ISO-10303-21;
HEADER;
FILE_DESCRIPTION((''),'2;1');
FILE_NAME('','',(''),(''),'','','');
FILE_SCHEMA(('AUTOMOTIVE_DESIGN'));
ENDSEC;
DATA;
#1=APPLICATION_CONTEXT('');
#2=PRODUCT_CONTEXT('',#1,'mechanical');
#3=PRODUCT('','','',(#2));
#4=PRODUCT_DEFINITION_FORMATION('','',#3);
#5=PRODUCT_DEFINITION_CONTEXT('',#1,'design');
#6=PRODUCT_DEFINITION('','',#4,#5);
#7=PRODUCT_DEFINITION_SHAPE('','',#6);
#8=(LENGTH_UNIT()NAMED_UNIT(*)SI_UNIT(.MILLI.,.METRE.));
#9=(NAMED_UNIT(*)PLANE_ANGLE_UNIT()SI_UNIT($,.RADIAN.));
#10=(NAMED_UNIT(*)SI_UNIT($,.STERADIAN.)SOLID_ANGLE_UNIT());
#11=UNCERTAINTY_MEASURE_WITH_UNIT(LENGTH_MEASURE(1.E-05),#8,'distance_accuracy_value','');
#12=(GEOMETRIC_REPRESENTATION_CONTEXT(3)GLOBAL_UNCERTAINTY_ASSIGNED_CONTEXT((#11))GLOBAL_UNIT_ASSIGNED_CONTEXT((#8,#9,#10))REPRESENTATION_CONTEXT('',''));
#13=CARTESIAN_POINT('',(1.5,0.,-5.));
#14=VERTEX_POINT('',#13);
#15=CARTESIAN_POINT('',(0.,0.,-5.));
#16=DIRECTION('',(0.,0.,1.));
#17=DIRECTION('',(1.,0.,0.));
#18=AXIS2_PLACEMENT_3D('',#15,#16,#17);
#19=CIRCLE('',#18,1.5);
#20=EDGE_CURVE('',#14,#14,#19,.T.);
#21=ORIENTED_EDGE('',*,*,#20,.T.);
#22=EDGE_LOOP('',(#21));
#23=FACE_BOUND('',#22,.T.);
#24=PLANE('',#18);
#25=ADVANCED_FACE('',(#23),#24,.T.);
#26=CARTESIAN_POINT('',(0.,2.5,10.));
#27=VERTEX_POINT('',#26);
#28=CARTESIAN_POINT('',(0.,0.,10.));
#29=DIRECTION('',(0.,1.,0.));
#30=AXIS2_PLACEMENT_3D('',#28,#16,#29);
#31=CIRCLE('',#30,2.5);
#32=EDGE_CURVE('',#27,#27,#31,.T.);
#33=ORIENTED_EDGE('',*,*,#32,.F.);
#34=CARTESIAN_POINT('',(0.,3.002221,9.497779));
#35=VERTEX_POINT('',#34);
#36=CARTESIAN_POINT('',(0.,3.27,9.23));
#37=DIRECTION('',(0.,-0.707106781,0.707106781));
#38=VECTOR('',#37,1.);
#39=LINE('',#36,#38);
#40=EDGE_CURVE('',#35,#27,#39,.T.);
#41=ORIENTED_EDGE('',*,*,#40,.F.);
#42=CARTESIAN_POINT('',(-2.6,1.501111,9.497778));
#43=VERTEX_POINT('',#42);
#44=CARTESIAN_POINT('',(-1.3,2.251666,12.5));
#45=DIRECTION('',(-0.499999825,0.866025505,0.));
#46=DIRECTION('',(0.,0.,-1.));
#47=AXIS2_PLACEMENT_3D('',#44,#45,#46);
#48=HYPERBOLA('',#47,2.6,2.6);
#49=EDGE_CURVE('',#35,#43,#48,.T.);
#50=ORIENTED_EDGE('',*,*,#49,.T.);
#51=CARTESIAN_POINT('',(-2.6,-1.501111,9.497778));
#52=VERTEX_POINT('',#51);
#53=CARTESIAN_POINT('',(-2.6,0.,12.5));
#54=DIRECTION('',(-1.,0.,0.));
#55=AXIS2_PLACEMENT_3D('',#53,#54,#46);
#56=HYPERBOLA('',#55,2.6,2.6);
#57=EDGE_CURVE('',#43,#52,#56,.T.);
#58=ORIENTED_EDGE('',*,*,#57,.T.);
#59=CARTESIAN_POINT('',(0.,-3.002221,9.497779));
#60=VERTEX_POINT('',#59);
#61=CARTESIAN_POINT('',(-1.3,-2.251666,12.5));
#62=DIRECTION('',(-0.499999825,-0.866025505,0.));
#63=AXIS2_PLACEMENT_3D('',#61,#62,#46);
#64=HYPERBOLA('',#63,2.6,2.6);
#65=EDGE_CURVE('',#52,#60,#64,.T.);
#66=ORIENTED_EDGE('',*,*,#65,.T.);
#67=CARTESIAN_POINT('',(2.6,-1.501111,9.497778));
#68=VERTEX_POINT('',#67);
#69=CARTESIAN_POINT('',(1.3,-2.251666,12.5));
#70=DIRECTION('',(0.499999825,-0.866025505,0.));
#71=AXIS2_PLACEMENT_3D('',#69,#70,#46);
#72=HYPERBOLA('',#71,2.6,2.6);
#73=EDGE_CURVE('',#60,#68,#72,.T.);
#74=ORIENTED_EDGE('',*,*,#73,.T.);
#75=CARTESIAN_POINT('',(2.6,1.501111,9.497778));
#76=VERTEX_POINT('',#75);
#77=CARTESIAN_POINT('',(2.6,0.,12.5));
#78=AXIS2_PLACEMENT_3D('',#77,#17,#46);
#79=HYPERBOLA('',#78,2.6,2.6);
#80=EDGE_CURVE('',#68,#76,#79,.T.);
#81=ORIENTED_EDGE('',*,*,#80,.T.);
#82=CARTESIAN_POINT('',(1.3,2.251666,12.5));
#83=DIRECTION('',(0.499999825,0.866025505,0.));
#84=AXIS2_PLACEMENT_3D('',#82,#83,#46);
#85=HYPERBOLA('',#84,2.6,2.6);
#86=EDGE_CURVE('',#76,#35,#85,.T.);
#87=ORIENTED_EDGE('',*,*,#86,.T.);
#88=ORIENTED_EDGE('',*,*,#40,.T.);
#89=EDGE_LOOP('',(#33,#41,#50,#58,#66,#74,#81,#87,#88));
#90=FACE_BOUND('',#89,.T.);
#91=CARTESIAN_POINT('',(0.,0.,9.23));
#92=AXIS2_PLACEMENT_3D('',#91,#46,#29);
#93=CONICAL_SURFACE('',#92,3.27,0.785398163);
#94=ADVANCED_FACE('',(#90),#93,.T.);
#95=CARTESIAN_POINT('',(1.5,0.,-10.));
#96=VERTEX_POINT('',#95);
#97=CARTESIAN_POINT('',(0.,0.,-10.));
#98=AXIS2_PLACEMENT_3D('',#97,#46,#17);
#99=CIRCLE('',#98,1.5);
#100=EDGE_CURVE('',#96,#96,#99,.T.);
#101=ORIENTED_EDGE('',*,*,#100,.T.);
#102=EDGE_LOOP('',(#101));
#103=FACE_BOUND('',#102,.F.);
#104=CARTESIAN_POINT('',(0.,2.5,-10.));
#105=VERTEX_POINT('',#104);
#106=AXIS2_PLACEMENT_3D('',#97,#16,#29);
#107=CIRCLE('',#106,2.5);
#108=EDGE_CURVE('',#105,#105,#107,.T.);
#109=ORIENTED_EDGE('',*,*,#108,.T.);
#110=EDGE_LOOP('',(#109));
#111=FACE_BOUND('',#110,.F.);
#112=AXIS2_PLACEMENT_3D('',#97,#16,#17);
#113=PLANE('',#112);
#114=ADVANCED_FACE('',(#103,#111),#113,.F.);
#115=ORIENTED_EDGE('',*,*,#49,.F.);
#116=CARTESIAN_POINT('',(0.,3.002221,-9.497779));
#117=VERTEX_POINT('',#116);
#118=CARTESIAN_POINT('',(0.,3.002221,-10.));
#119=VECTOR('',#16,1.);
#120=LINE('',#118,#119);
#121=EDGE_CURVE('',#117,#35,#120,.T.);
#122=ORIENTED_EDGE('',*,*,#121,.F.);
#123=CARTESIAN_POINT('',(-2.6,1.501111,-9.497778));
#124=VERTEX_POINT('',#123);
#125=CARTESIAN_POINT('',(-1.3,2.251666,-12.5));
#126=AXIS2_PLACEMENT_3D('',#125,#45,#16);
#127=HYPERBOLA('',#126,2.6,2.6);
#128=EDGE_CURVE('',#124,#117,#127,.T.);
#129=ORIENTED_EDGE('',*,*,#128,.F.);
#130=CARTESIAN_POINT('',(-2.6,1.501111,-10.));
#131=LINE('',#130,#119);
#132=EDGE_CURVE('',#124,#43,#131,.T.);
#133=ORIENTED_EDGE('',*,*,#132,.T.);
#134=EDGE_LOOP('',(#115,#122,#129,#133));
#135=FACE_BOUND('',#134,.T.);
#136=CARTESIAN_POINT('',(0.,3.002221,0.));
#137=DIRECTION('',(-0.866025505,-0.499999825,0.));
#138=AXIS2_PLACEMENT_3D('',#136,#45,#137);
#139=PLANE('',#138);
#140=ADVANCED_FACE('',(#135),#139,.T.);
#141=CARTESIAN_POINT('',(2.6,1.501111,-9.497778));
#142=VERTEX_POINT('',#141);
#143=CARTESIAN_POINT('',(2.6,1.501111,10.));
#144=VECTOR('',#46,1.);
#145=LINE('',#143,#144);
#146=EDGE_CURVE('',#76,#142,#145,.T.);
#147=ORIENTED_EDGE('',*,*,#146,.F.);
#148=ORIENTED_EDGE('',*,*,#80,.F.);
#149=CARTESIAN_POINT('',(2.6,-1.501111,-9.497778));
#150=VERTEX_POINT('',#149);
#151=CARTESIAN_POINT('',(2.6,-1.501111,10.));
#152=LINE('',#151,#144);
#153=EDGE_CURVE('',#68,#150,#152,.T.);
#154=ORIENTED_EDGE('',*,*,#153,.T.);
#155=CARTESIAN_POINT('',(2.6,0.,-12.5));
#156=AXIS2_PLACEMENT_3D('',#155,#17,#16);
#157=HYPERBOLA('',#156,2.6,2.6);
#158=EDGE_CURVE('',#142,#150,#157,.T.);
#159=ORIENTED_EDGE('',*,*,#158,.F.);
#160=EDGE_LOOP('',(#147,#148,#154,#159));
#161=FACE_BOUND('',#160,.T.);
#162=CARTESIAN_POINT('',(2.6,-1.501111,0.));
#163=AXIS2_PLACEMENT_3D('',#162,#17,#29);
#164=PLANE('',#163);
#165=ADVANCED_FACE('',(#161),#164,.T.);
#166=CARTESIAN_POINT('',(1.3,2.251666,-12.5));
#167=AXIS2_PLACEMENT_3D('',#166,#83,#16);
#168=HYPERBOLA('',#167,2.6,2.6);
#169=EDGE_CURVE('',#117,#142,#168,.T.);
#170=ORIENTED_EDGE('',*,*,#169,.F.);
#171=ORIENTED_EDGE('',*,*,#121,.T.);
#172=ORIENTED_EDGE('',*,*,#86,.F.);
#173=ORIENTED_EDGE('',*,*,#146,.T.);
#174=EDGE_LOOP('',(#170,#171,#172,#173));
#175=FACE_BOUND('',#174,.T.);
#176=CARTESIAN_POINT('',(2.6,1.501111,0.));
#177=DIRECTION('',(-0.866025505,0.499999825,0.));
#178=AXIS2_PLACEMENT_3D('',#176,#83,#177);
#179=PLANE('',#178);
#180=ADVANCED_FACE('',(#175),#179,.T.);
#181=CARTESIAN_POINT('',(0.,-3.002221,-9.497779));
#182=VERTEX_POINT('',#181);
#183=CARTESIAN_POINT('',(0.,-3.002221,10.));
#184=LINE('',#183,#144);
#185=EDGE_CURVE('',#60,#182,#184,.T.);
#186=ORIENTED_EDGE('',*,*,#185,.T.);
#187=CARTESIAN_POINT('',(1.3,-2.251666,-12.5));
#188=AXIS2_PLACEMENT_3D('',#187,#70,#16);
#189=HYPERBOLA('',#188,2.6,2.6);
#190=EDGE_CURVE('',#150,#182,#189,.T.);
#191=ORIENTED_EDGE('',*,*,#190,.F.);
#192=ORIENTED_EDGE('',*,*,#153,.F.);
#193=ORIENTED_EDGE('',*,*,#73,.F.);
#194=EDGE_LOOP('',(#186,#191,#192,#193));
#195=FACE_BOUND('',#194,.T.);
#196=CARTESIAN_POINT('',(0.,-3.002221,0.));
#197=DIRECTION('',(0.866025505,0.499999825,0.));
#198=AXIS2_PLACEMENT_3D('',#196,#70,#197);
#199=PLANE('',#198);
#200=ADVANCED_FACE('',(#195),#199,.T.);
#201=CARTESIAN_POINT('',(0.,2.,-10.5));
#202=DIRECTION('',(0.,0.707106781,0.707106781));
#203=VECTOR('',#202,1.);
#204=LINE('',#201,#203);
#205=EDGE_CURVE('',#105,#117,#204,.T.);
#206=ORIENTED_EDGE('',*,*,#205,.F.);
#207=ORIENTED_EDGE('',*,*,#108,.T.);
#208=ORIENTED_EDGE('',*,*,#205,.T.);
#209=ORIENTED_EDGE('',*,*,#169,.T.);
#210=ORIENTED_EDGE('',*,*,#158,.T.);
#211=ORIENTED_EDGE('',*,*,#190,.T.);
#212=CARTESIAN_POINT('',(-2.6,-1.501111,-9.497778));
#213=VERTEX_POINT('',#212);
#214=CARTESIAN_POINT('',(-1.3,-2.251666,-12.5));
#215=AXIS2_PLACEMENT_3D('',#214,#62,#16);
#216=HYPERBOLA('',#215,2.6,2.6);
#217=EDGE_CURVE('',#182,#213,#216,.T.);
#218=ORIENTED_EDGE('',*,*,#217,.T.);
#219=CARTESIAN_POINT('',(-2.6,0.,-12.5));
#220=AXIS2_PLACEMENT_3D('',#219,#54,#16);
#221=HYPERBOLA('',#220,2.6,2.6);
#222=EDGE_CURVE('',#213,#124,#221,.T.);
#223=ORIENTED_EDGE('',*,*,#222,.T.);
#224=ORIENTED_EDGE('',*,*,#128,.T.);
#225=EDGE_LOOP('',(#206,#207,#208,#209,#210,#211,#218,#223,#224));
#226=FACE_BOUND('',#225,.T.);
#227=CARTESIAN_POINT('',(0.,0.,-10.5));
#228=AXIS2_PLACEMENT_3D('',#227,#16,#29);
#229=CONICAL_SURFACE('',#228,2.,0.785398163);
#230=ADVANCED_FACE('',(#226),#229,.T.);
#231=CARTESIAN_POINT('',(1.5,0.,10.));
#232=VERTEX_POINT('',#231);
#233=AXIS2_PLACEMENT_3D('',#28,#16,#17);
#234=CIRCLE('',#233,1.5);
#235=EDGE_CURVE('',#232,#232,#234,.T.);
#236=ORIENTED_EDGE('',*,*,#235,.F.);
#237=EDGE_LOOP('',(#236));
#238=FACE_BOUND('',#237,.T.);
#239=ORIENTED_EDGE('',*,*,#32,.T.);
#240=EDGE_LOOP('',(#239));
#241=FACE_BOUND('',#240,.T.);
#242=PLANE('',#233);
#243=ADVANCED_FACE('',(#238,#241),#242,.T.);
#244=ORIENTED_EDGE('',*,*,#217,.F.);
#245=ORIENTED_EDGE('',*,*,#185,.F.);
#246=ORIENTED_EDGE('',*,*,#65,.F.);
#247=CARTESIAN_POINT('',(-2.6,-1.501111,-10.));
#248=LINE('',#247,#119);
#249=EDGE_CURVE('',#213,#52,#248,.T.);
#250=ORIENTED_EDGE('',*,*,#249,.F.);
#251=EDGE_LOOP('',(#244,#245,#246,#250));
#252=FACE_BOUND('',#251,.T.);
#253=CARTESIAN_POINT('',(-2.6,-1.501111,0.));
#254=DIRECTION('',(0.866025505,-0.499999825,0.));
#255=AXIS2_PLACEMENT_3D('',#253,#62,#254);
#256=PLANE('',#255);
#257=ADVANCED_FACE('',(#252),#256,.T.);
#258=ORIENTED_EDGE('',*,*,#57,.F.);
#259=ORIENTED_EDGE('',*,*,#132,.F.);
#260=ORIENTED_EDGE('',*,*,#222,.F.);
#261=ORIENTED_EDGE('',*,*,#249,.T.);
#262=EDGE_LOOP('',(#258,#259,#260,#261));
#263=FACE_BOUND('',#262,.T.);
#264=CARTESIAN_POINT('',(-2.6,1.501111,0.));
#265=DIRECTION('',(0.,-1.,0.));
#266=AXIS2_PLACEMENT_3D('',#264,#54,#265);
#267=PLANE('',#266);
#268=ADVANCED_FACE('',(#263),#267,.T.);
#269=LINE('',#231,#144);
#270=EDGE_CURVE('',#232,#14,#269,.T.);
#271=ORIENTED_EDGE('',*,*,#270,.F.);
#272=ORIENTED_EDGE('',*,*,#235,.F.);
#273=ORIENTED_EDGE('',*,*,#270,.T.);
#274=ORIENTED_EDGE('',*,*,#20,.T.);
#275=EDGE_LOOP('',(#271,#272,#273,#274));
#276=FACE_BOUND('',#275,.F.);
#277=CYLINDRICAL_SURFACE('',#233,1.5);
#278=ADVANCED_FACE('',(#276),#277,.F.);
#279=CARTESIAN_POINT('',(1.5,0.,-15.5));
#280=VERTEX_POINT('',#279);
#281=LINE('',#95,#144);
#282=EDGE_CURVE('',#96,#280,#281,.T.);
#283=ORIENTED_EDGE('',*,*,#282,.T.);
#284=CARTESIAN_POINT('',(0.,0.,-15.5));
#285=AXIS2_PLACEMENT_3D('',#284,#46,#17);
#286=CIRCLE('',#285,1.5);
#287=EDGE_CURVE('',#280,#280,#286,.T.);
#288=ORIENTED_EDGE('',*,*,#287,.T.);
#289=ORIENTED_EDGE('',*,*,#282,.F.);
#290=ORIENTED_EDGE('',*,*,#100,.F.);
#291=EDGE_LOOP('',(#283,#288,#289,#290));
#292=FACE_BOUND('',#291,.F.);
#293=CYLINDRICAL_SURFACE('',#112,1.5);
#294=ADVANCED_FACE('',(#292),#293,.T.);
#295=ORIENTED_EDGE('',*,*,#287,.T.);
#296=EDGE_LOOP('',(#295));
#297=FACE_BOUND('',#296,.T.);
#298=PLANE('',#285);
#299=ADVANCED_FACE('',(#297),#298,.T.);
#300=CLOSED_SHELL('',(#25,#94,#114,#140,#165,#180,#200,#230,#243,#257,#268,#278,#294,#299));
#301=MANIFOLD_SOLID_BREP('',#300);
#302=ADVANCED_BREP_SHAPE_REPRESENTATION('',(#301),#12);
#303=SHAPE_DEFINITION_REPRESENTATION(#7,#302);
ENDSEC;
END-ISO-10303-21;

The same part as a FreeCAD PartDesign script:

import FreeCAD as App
import Part
import Sketcher
Q = App.Units.Quantity


def add_polygon(sketch, points):
    """Adds a closed chain of lines whose ends are joined by coincident constraints."""
    first, n = sketch.GeometryCount, len(points)
    for a, b in zip(points, points[1:] + points[:1]):
        sketch.addGeometry(Part.LineSegment(App.Vector(*a, 0), App.Vector(*b, 0)), False)
    for i in range(n):
        sketch.addConstraint(Sketcher.Constraint("Coincident", first + i, 2, first + (i + 1) % n, 1))

doc = App.newDocument("Part")
body = doc.addObject("PartDesign::Body", "Body")

# Sketch on XY plane
sketch1 = body.newObject("Sketcher::SketchObject", "Sketch")
sketch1.AttachmentSupport = (doc.getObject("XY_Plane"), [""])
sketch1.MapMode = "FlatFace"
add_polygon(sketch1, [(2.6, 1.5), (0, 3), (-2.6, 1.5), (-2.6, -1.5), (0, -3), (2.6, -1.5)])  # lines 0-5
sketch1.addConstraint(Sketcher.Constraint("Vertical", 2))
sketch1.addConstraint(Sketcher.Constraint("Vertical", 5))
sketch1.addConstraint(Sketcher.Constraint("Symmetric", 0, 2, 3, 2, -1, 1))
sketch1.addConstraint(Sketcher.Constraint("Symmetric", 1, 2, 4, 2, -1, 1))
sketch1.addConstraint(Sketcher.Constraint("PointOnObject", 0, 2, -2))
sketch1.addConstraint(Sketcher.Constraint("Parallel", 0, 3))
sketch1.addConstraint(Sketcher.Constraint("Horizontal", 2, 2, 4, 2))
sketch1.addConstraint(Sketcher.Constraint("Angle", 0, Q("150.000012 deg")))
sketch1.addConstraint(Sketcher.Constraint("DistanceX", 1, 2, -1, 1, 2.6))
sketch1.addConstraint(Sketcher.Constraint("DistanceY", 2, 2, 2, 1, 3.002222))
pad1 = body.newObject("PartDesign::Pad", "Pad")
pad1.Profile = sketch1
pad1.Length = 20
pad1.Midplane = True

# Sketch on XY plane
sketch2 = body.newObject("Sketcher::SketchObject", "Sketch001")
sketch2.AttachmentSupport = (doc.getObject("XY_Plane"), [""])
sketch2.MapMode = "FlatFace"
sketch2.AttachmentOffset = App.Placement(App.Vector(0, 0, 10), App.Rotation())
sketch2.addGeometry(Part.Circle(App.Vector(0, 0, 0), App.Vector(0, 0, 1), 1.5), False)
sketch2.addConstraint(Sketcher.Constraint("Coincident", 0, 3, -1, 1))
sketch2.addConstraint(Sketcher.Constraint("Diameter", 0, 3.0))
pocket1 = body.newObject("PartDesign::Pocket", "Pocket")
pocket1.Profile = sketch2
pocket1.Length = 15

# Sketch on XY plane
sketch3 = body.newObject("Sketcher::SketchObject", "Sketch002")
sketch3.AttachmentSupport = (doc.getObject("XY_Plane"), [""])
sketch3.MapMode = "FlatFace"
sketch3.AttachmentOffset = App.Placement(App.Vector(0, 0, -10), App.Rotation())
sketch3.addGeometry(Part.Circle(App.Vector(0, 0, 0), App.Vector(0, 0, 1), 1.5), False)
sketch3.addConstraint(Sketcher.Constraint("Coincident", 0, 3, -1, 1))
sketch3.addConstraint(Sketcher.Constraint("Diameter", 0, 3.0))
pad2 = body.newObject("PartDesign::Pad", "Pad001")
pad2.Profile = sketch3
pad2.Length = 5.5
pad2.Reversed = True

# Sketch on YZ plane
sketch4 = body.newObject("Sketcher::SketchObject", "Sketch003")
sketch4.AttachmentSupport = (doc.getObject("YZ_Plane"), [""])
sketch4.MapMode = "FlatFace"
add_polygon(sketch4, [(5, 10.5), (2, 10.5), (3.3, 9.2), (3.3, -9.2), (2, -10.5), (5, -10.5)])  # lines 0-5
sketch4.addConstraint(Sketcher.Constraint("Horizontal", 0))
sketch4.addConstraint(Sketcher.Constraint("Vertical", 2))
sketch4.addConstraint(Sketcher.Constraint("Horizontal", 4))
sketch4.addConstraint(Sketcher.Constraint("Vertical", 5))
sketch4.addConstraint(Sketcher.Constraint("Symmetric", 0, 2, 3, 2, -1))
sketch4.addConstraint(Sketcher.Constraint("Perpendicular", 1, 3))
sketch4.addConstraint(Sketcher.Constraint("Equal", 1, 3))
sketch4.addConstraint(Sketcher.Constraint("DistanceX", 0, 2, 0, 1, 3.0))
sketch4.addConstraint(Sketcher.Constraint("DistanceY", 5, 1, 5, 2, 21.0))
sketch4.addConstraint(Sketcher.Constraint("DistanceX", -1, 1, 0, 2, 2.0))
sketch4.addConstraint(Sketcher.Constraint("DistanceY", 2, 2, 2, 1, 18.46))
groove = body.newObject("PartDesign::Groove", "Groove")
groove.Profile = sketch4
groove.ReferenceAxis = (sketch4, ["V_Axis"])
groove.Angle = 360

doc.recompute()
